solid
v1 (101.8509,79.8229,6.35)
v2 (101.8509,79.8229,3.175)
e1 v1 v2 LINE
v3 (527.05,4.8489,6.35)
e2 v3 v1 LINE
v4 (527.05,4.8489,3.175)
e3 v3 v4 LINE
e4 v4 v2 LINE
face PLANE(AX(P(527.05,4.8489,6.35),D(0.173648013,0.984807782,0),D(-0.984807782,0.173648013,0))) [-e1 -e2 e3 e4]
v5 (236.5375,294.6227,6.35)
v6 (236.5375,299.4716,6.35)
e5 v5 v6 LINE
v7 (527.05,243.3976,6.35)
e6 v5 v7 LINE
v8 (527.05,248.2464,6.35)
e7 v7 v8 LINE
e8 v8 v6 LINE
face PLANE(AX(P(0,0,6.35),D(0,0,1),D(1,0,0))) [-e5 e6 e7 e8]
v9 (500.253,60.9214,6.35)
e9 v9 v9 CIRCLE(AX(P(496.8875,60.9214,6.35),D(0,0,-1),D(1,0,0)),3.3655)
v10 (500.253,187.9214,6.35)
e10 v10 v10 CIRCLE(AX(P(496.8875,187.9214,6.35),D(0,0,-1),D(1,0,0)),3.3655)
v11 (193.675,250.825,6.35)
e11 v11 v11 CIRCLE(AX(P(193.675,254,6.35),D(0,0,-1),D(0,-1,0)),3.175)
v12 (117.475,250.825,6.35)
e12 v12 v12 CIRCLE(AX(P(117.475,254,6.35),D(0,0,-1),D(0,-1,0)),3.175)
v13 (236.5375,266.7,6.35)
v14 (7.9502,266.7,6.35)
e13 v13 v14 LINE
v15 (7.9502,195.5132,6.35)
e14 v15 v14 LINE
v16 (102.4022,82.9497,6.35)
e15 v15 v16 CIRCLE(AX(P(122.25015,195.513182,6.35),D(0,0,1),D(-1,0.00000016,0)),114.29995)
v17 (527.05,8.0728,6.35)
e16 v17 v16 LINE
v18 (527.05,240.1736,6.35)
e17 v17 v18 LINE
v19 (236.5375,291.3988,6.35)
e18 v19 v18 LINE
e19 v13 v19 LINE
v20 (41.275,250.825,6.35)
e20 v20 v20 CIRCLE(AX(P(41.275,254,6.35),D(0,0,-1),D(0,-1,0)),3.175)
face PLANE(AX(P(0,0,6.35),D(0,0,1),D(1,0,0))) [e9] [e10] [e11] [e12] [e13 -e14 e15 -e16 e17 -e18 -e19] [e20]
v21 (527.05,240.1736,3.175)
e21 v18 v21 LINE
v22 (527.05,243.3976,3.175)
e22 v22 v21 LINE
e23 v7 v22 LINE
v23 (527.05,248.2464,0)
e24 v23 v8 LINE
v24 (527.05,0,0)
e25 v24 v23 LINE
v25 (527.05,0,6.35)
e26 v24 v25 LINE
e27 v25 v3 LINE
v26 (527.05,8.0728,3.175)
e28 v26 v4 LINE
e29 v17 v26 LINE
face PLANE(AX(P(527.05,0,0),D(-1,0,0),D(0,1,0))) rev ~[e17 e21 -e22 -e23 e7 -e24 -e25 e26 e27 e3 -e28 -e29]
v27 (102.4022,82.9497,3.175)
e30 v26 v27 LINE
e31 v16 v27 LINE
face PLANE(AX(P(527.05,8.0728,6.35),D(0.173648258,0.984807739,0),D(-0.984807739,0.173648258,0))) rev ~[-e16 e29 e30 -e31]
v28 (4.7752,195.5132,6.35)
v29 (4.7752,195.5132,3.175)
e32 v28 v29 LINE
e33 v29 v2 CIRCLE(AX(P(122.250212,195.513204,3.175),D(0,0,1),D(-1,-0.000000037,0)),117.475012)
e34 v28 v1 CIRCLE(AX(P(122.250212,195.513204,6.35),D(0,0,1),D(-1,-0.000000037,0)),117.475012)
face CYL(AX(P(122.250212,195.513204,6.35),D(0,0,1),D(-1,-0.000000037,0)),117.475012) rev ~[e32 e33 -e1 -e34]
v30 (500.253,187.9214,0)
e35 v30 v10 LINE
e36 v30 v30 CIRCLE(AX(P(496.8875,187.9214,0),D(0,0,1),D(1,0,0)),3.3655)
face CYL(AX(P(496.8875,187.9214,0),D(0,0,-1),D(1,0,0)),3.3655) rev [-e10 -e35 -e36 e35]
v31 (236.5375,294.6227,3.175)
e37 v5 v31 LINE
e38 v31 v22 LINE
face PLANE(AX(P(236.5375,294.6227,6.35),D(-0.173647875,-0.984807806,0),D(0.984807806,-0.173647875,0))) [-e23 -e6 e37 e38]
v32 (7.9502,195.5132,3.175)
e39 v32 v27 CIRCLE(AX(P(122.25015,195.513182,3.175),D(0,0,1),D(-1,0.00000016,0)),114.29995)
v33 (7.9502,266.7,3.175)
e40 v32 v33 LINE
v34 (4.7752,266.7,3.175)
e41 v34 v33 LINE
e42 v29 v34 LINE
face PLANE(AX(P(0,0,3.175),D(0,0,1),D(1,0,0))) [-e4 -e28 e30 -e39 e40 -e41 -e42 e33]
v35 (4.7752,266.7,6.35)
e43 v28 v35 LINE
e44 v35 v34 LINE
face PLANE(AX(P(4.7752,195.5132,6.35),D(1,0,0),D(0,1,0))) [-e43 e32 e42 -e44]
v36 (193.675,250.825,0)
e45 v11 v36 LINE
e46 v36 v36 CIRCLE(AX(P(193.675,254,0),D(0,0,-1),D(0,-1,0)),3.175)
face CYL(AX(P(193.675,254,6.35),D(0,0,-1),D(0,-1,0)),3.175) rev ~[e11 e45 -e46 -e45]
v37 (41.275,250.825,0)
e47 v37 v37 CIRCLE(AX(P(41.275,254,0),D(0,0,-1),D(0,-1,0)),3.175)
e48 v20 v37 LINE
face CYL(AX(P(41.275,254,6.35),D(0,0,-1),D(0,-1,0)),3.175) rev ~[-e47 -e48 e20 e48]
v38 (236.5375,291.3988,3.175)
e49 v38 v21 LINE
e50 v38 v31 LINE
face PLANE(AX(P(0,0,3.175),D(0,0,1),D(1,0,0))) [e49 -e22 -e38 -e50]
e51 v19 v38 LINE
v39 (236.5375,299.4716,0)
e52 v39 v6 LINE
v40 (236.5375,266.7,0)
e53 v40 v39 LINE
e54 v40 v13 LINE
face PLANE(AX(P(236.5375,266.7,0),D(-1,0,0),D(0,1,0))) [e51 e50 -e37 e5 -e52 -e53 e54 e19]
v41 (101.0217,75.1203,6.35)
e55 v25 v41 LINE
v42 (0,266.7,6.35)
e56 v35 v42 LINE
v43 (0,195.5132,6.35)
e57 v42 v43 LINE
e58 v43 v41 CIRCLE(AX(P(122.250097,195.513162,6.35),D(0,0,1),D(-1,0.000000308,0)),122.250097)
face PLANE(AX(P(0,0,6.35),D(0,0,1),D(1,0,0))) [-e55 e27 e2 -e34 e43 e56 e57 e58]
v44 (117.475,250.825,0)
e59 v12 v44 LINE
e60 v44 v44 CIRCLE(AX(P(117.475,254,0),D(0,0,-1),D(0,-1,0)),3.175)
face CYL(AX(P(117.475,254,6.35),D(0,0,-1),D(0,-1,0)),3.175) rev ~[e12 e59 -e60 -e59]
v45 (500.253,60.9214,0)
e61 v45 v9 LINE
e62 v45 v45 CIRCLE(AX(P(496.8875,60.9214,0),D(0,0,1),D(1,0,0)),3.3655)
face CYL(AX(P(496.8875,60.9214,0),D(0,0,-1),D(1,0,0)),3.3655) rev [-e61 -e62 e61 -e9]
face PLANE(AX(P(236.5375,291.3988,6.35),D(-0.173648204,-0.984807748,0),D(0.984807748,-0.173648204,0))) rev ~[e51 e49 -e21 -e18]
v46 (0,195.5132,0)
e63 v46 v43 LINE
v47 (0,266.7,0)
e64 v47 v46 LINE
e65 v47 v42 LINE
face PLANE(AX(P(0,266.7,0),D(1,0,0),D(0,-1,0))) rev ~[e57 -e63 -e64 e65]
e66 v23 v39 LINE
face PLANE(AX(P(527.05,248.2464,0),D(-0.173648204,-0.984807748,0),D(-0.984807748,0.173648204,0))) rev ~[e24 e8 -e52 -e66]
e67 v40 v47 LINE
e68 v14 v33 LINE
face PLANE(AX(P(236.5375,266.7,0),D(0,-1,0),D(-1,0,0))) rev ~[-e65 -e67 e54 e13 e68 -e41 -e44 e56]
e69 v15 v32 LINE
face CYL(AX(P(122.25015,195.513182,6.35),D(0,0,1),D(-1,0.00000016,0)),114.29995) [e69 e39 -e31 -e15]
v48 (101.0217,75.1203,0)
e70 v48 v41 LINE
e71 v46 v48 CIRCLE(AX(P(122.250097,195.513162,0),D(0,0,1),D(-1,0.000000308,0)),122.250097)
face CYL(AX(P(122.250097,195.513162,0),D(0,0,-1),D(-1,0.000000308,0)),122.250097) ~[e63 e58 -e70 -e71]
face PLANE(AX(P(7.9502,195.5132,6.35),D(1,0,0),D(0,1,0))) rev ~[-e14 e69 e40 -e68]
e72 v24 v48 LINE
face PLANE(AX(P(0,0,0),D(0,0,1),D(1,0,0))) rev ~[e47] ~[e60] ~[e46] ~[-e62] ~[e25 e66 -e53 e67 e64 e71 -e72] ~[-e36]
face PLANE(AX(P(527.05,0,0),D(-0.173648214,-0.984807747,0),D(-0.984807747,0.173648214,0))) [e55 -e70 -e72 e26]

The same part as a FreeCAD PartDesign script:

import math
import FreeCAD as App
import Part
import Sketcher
from FreeCAD import Vector
Q = App.Units.Quantity


def add_polygon(sketch, points):
    """Adds a closed chain of lines whose ends are joined by coincident constraints."""
    first, n = sketch.GeometryCount, len(points)
    for a, b in zip(points, points[1:] + points[:1]):
        sketch.addGeometry(Part.LineSegment(App.Vector(*a, 0), App.Vector(*b, 0)), False)
    for i in range(n):
        sketch.addConstraint(Sketcher.Constraint("Coincident", first + i, 2, first + (i + 1) % n, 1))

doc = App.newDocument("Part")
body = doc.addObject("PartDesign::Body", "Body")

# Sketch on XY plane
sketch1 = body.newObject("Sketcher::SketchObject", "Sketch")
sketch1.AttachmentSupport = (doc.getObject("XY_Plane"), [""])
sketch1.MapMode = "FlatFace"
sketch1.addGeometry([
    Part.LineSegment(Vector(101, 75, 0), Vector(527, 0, 0)),  # 0
    Part.LineSegment(Vector(527, 0, 0), Vector(527, 248, 0)),  # 1
    Part.LineSegment(Vector(527, 248, 0), Vector(237, 299, 0)),  # 2
    Part.LineSegment(Vector(237, 299, 0), Vector(237, 267, 0)),  # 3
    Part.LineSegment(Vector(237, 267, 0), Vector(0, 267, 0)),  # 4
    Part.LineSegment(Vector(0, 267, 0), Vector(0, 196, 0)),  # 5
    Part.ArcOfCircle(Part.Circle(Vector(122, 196, 0), Vector(0, 0, 1), 122), math.radians(180), math.radians(260)),  # 6
], False)
sketch1.addConstraint([
    Sketcher.Constraint("Coincident", 0, 2, 1, 1),
    Sketcher.Constraint("Coincident", 1, 2, 2, 1),
    Sketcher.Constraint("Coincident", 2, 2, 3, 1),
    Sketcher.Constraint("Coincident", 3, 2, 4, 1),
    Sketcher.Constraint("Coincident", 4, 2, 5, 1),
    Sketcher.Constraint("Tangent", 5, 2, 6, 1),
    Sketcher.Constraint("Tangent", 6, 2, 0, 1),
    Sketcher.Constraint("Vertical", 1),
    Sketcher.Constraint("Vertical", 3),
    Sketcher.Constraint("Horizontal", 4),
    Sketcher.Constraint("Vertical", 5),
    Sketcher.Constraint("PointOnObject", 0, 2, -1),
    Sketcher.Constraint("PointOnObject", 4, 2, -2),
    Sketcher.Constraint("Parallel", 0, 2),
    Sketcher.Constraint("Angle", 0, Q("-10 deg")),
    Sketcher.Constraint("Radius", 6, Q("4.813 in")),
    Sketcher.Constraint("DistanceY", -1, 1, 3, 2, Q("10.5 in")),
    Sketcher.Constraint("DistanceX", 4, 2, 4, 1, Q("9.3125 in")),
    Sketcher.Constraint("DistanceX", -1, 1, 0, 2, Q("20.75 in")),
    Sketcher.Constraint("DistanceY", 1, 1, 1, 2, 248.2464),
])
pad1 = body.newObject("PartDesign::Pad", "Pad")
pad1.Profile = sketch1
pad1.Length = Q("0.25 in")

# Sketch on XY plane
sketch2 = body.newObject("Sketcher::SketchObject", "Sketch001")
sketch2.AttachmentSupport = (doc.getObject("XY_Plane"), [""])
sketch2.MapMode = "FlatFace"
sketch2.AttachmentOffset = App.Placement(Vector(0, 0, 0.25 * 25.4), App.Rotation())
add_polygon(sketch2, [(236.5, 294.6), (236.5, 291.4), (527, 240.2), (527, 243.4)])  # lines 0-3
sketch2.addGeometry(Part.LineSegment(Vector(8, 195.5, 0), Vector(8, 266.7, 0)), False)  # 4
sketch2.addGeometry(Part.LineSegment(Vector(8, 266.7, 0), Vector(4.8, 266.7, 0)), False)  # 5
sketch2.addGeometry(Part.LineSegment(Vector(4.8, 266.7, 0), Vector(4.8, 195.5, 0)), False)  # 6
sketch2.addGeometry(Part.ArcOfCircle(Part.Circle(Vector(122.3, 195.5, 0), Vector(0, 0, 1), 117.5), math.radians(180), math.radians(260)), False)  # 7
sketch2.addGeometry(Part.LineSegment(Vector(101.9, 79.8, 0), Vector(527, 4.8, 0)), False)  # 8
sketch2.addGeometry(Part.LineSegment(Vector(527, 4.8, 0), Vector(527, 8.1, 0)), False)  # 9
sketch2.addGeometry(Part.LineSegment(Vector(527, 8.1, 0), Vector(102.4, 82.9, 0)), False)  # 10
sketch2.addGeometry(Part.ArcOfCircle(Part.Circle(Vector(122.3, 195.5, 0), Vector(0, 0, 1), 114.3), math.radians(180), math.radians(260)), False)  # 11
sketch2.addConstraint([
    Sketcher.Constraint("Coincident", 4, 2, 5, 1),
    Sketcher.Constraint("Coincident", 5, 2, 6, 1),
    Sketcher.Constraint("Tangent", 6, 2, 7, 1),
    Sketcher.Constraint("Tangent", 7, 2, 8, 1),
    Sketcher.Constraint("Coincident", 8, 2, 9, 1),
    Sketcher.Constraint("Coincident", 9, 2, 10, 1),
    Sketcher.Constraint("Tangent", 10, 2, 11, 2),
    Sketcher.Constraint("Tangent", 11, 1, 4, 1),
    Sketcher.Constraint("Vertical", 0),
    Sketcher.Constraint("Vertical", 2),
    Sketcher.Constraint("Vertical", 4),
    Sketcher.Constraint("Horizontal", 5),
    Sketcher.Constraint("Vertical", 6),
    Sketcher.Constraint("Vertical", 9),
    Sketcher.Constraint("Coincident", 11, 3, 7, 3),
    Sketcher.Constraint("Parallel", 1, 3),
    Sketcher.Constraint("Parallel", 3, 8),
    Sketcher.Constraint("Parallel", 8, 10),
    Sketcher.Constraint("Vertical", 2, 2, 8, 2),
    Sketcher.Constraint("Equal", 2, 9),
    Sketcher.Constraint("Radius", 11, Q("4.5 in")),
    Sketcher.Constraint("Radius", 7, Q("4.625 in")),
    Sketcher.Constraint("DistanceX", -1, 1, 5, 2, Q("0.188 in")),
    Sketcher.Constraint("Angle", 1, Q("-10 deg")),
    Sketcher.Constraint("DistanceY", -1, 1, 4, 2, Q("10.5 in")),
    Sketcher.Constraint("DistanceX", -1, 1, 1, 2, Q("20.75 in")),
    Sketcher.Constraint("DistanceX", -1, 1, 0, 2, Q("9.3125 in")),
    Sketcher.Constraint("DistanceY", 4, 1, 4, 2, 71.1868),
    Sketcher.Constraint("DistanceY", -1, 1, 0, 2, Q("11.4724 in")),
])
pocket1 = body.newObject("PartDesign::Pocket", "Pocket")
pocket1.Profile = sketch2
pocket1.Length = Q("0.125 in")

# Sketch on XY plane
sketch3 = body.newObject("Sketcher::SketchObject", "Sketch002")
sketch3.AttachmentSupport = (doc.getObject("XY_Plane"), [""])
sketch3.MapMode = "FlatFace"
sketch3.addGeometry([
    Part.Circle(Vector(496.9, 187.9, 0), Vector(0, 0, 1), 3.4),
    Part.Circle(Vector(496.9, 60.9, 0), Vector(0, 0, 1), 3.4),
], False)
sketch3.addConstraint([
    Sketcher.Constraint("Equal", 0, 1),
    Sketcher.Constraint("Vertical", 0, 3, 1, 3),
    Sketcher.Constraint("Diameter", 0, Q("0.265 in")),
    Sketcher.Constraint("DistanceY", 1, 3, 0, 3, Q("5 in")),
    Sketcher.Constraint("DistanceX", -1, 1, 0, 3, Q("19.5625 in")),
    Sketcher.Constraint("DistanceY", -1, 1, 0, 3, 187.9214),
])
pocket2 = body.newObject("PartDesign::Pocket", "Pocket001")
pocket2.Profile = sketch3
pocket2.Length = Q("1 in")
pocket2.Reversed = True

# Sketch on XY plane
sketch4 = body.newObject("Sketcher::SketchObject", "Sketch003")
sketch4.AttachmentSupport = (doc.getObject("XY_Plane"), [""])
sketch4.MapMode = "FlatFace"
sketch4.AttachmentOffset = App.Placement(Vector(0, 0, 0.25 * 25.4), App.Rotation())
sketch4.addGeometry(Part.Circle(Vector(41.3, 254, 0), Vector(0, 0, 1), 3.2), False)
sketch4.addConstraint([
    Sketcher.Constraint("Diameter", 0, Q("0.25 in")),
    Sketcher.Constraint("DistanceY", -1, 1, 0, 3, Q("10 in")),
    Sketcher.Constraint("DistanceX", -1, 1, 0, 3, Q("1.625 in")),
])
doc.recompute()
hole = body.newObject("PartDesign::Hole", "Hole")
hole.Profile = sketch4
hole.ThreadType = "None"
hole.Diameter = Q("0.25 in")
hole.DepthType = "Dimension"
hole.Depth = Q("1 in")
hole.DrillPoint = "Angled"
hole.DrillPointAngle = 118
doc.recompute()

linearpattern = body.newObject("PartDesign::LinearPattern", "LinearPattern")
linearpattern.Originals = [hole]
linearpattern.Direction = (doc.getObject("X_Axis"), [""])
linearpattern.Mode = "offset"
linearpattern.Offset = Q("3 in")
linearpattern.Occurrences = 3
body.Tip = linearpattern

doc.recompute()
